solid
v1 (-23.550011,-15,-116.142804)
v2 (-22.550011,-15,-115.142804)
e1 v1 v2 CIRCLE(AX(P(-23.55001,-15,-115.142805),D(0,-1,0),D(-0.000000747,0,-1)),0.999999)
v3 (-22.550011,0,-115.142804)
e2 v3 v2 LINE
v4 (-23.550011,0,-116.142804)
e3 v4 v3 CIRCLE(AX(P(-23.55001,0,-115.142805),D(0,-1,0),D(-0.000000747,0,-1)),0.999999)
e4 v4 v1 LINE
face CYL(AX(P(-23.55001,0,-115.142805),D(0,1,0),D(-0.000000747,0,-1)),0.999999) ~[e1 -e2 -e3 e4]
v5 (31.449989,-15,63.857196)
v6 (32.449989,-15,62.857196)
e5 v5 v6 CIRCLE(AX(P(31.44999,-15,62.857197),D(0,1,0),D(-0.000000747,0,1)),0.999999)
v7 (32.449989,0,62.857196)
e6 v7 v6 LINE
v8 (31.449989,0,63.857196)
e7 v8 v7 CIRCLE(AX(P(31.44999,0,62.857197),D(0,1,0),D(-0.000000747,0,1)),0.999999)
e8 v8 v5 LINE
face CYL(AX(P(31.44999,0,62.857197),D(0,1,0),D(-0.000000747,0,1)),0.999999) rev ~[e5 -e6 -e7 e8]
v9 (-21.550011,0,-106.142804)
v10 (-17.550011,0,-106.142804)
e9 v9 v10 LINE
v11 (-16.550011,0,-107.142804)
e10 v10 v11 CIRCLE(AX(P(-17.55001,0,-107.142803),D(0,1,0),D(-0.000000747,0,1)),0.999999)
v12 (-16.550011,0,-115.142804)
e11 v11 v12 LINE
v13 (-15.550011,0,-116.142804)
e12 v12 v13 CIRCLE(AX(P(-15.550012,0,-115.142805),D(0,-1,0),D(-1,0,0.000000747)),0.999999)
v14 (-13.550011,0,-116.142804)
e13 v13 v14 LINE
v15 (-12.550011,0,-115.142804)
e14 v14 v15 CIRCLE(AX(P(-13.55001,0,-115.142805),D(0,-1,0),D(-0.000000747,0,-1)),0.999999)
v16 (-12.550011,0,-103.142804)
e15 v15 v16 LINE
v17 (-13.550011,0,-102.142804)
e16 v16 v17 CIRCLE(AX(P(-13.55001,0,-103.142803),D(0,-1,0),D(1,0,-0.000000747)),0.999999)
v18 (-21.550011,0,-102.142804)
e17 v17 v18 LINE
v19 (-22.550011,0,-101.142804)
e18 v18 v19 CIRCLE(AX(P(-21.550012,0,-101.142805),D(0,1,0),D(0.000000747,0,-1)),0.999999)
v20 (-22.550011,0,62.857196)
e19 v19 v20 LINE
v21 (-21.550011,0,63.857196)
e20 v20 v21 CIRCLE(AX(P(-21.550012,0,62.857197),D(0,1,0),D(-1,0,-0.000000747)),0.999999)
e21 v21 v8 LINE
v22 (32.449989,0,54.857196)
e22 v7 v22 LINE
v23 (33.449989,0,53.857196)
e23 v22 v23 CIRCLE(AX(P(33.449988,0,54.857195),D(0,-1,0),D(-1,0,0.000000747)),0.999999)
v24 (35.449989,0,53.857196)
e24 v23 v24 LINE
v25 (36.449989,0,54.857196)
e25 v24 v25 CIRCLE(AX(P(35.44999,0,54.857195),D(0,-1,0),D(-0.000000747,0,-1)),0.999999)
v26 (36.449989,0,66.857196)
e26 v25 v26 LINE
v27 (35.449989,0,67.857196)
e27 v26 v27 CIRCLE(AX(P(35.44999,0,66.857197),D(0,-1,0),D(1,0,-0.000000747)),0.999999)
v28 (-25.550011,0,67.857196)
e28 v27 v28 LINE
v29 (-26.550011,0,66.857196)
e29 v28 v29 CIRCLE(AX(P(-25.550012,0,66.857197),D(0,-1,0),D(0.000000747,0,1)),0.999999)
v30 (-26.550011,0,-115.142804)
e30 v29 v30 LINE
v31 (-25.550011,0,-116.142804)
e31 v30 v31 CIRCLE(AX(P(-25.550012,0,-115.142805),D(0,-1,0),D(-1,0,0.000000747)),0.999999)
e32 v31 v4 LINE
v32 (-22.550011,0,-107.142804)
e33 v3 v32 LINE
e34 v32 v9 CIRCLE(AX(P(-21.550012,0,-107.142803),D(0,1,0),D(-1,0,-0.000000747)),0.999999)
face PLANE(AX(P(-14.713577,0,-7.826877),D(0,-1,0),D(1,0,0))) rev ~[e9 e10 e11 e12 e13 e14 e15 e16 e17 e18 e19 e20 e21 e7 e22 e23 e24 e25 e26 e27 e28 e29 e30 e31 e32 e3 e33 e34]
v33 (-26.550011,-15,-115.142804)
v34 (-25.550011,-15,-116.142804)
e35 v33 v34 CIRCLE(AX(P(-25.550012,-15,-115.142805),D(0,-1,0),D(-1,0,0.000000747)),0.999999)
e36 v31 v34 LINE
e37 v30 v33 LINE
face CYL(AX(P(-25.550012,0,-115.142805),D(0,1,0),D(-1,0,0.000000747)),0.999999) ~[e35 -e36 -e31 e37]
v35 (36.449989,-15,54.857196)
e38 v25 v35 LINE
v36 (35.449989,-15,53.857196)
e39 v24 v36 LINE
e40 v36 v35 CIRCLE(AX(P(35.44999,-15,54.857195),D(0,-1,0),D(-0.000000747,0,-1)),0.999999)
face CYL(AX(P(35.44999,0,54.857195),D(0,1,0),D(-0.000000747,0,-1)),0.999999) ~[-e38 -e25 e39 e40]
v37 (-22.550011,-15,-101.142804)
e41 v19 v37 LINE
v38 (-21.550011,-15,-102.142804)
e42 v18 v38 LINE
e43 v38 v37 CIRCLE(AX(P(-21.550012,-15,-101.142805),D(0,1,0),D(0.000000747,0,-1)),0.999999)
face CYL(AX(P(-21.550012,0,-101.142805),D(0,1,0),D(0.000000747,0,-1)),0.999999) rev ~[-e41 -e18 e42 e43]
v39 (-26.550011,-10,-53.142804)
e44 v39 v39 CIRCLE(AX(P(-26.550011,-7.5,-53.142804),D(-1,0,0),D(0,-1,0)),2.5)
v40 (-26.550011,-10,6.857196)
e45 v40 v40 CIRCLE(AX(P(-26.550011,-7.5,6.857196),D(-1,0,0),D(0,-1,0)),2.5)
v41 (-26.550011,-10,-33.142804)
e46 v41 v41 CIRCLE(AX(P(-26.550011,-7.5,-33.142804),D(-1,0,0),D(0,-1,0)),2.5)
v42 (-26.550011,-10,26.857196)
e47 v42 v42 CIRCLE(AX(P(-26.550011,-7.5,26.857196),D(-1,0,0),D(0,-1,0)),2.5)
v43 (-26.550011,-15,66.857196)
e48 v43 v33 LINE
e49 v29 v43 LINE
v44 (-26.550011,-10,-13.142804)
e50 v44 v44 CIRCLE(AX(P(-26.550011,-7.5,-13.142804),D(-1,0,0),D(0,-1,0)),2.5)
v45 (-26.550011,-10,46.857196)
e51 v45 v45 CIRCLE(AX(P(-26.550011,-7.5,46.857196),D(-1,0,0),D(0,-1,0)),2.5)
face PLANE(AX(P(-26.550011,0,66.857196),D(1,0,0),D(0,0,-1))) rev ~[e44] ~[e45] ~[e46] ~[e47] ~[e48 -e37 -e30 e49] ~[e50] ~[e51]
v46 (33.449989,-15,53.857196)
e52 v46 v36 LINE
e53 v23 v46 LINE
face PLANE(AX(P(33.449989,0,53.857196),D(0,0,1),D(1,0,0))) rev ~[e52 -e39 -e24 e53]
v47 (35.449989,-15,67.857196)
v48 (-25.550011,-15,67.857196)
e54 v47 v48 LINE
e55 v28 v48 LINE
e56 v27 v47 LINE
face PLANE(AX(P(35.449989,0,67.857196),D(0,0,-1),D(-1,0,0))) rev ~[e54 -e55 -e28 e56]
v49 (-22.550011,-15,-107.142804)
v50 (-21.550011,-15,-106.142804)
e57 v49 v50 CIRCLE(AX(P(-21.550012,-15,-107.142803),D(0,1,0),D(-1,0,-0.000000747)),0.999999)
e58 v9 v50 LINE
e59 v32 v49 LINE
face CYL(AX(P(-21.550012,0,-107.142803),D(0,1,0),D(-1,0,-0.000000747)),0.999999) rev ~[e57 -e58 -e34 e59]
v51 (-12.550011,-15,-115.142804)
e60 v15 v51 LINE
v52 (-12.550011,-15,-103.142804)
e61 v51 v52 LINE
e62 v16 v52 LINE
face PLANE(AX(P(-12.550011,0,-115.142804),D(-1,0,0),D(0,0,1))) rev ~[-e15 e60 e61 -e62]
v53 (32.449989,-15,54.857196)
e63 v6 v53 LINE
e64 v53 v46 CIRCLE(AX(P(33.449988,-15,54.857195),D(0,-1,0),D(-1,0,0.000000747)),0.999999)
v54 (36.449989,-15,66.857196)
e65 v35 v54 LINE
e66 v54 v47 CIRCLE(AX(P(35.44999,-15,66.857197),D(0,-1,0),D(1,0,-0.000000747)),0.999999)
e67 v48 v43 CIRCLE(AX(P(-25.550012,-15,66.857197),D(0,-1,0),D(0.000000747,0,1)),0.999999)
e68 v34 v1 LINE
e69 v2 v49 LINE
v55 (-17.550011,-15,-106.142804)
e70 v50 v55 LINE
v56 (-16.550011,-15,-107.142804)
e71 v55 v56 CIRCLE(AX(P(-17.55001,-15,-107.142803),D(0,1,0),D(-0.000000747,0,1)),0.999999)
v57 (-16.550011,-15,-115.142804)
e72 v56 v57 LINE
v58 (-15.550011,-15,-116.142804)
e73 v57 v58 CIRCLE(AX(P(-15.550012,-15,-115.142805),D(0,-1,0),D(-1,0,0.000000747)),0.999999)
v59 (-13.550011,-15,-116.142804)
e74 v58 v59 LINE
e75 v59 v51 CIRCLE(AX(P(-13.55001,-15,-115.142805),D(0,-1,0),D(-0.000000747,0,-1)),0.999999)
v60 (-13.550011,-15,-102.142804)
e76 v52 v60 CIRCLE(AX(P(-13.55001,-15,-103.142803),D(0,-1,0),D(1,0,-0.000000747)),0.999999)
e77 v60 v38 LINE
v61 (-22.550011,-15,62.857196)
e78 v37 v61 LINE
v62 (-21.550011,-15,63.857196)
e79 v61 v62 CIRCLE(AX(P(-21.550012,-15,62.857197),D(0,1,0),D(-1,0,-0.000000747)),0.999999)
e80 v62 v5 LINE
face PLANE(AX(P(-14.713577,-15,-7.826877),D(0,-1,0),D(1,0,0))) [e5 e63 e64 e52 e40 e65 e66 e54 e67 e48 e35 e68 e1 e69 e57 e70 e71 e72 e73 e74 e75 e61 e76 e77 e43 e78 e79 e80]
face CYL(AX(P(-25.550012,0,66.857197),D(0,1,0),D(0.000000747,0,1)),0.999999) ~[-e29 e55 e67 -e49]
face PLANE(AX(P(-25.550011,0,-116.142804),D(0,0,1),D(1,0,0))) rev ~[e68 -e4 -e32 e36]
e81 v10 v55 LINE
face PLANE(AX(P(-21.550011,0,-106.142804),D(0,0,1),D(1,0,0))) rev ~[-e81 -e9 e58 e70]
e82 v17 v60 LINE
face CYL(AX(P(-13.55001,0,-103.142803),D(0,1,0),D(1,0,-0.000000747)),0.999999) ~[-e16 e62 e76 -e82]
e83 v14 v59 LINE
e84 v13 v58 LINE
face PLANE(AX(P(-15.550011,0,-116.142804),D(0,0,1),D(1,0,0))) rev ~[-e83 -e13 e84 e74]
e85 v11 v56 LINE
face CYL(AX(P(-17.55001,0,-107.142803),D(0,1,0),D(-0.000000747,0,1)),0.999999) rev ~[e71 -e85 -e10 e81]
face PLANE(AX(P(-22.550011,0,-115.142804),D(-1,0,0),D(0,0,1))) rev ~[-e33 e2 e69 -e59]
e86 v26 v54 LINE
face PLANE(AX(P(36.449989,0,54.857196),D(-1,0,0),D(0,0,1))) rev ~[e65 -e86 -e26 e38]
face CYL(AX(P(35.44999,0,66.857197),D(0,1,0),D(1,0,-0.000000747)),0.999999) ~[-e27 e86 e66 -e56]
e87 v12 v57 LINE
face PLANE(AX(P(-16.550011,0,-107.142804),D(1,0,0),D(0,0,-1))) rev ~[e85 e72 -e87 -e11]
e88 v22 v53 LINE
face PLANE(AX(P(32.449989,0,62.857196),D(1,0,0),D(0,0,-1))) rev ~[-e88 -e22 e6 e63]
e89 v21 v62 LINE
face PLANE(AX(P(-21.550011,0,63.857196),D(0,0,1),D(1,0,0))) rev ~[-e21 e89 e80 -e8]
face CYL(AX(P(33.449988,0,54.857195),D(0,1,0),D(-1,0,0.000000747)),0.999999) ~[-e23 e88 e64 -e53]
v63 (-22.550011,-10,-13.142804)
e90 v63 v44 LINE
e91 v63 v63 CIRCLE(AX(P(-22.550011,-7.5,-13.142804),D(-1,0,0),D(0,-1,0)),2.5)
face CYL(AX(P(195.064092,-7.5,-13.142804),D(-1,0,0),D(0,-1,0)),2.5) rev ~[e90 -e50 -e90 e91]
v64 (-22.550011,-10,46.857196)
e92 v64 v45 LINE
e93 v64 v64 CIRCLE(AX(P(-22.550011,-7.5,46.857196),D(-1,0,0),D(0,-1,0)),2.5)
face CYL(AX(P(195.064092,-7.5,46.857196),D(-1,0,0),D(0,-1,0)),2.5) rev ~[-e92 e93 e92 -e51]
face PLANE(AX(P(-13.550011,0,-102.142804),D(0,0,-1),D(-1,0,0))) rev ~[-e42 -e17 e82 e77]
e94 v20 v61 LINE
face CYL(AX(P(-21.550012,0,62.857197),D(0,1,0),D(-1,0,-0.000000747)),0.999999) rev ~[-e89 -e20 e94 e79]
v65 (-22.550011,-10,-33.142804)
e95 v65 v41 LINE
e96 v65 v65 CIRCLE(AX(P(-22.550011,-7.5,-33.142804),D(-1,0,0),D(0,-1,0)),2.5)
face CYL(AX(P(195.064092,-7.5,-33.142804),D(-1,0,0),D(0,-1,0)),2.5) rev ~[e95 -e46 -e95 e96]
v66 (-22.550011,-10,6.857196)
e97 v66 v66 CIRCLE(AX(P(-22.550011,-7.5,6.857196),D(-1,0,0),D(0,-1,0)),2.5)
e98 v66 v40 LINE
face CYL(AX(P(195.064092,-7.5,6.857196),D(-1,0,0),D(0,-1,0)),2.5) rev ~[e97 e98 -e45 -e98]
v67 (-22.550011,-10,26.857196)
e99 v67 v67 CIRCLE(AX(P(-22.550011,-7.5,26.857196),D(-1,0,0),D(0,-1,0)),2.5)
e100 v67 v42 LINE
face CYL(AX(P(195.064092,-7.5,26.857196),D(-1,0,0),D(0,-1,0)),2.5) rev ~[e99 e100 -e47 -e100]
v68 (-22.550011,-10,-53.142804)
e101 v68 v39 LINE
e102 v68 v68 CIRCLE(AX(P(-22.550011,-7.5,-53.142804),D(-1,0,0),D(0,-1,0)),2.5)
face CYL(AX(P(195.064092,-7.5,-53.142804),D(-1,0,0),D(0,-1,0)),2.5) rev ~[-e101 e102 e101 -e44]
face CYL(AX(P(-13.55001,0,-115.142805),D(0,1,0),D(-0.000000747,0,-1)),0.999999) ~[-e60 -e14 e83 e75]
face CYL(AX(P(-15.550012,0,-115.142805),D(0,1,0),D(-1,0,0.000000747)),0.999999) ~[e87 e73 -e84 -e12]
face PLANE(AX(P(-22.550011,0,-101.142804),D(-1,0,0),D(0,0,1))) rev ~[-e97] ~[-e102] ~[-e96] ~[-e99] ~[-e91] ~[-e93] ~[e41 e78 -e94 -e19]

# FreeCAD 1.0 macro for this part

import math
import FreeCAD as App
import Part
import Sketcher

V = App.Vector
Q = App.Units.Quantity

doc = App.newDocument("Part")
body = doc.addObject("PartDesign::Body", "Body")

sketch1 = body.newObject("Sketcher::SketchObject", "Sketch")
sketch1.AttachmentSupport = (doc.getObject("XZ_Plane"), [""])
sketch1.MapMode = "FlatFace"
sketch1.addGeometry(Part.ArcOfCircle(Part.Circle(V(-21.6, -101.1, 0), V(0, 0, 1), 1), math.radians(180), math.radians(270)), False)
sketch1.addGeometry(Part.LineSegment(V(-22.6, -101.1, 0), V(-22.6, 62.9, 0)), False)
sketch1.addGeometry(Part.ArcOfCircle(Part.Circle(V(-21.6, 62.9, 0), V(0, 0, 1), 1), math.radians(90), math.radians(180)), False)
sketch1.addGeometry(Part.LineSegment(V(-21.6, 63.9, 0), V(31.4, 63.9, 0)), False)
sketch1.addGeometry(Part.ArcOfCircle(Part.Circle(V(31.4, 62.9, 0), V(0, 0, 1), 1), math.radians(0), math.radians(90)), False)
sketch1.addGeometry(Part.LineSegment(V(32.4, 62.9, 0), V(32.4, 54.9, 0)), False)
sketch1.addGeometry(Part.ArcOfCircle(Part.Circle(V(33.4, 54.9, 0), V(0, 0, 1), 1), math.radians(180), math.radians(270)), False)
sketch1.addGeometry(Part.LineSegment(V(33.4, 53.9, 0), V(35.4, 53.9, 0)), False)
sketch1.addGeometry(Part.ArcOfCircle(Part.Circle(V(35.4, 54.9, 0), V(0, 0, 1), 1), math.radians(-90), math.radians(0)), False)
sketch1.addGeometry(Part.LineSegment(V(36.4, 54.9, 0), V(36.4, 66.9, 0)), False)
sketch1.addGeometry(Part.ArcOfCircle(Part.Circle(V(35.4, 66.9, 0), V(0, 0, 1), 1), math.radians(0), math.radians(90)), False)
sketch1.addGeometry(Part.LineSegment(V(35.4, 67.9, 0), V(-25.6, 67.9, 0)), False)
sketch1.addGeometry(Part.ArcOfCircle(Part.Circle(V(-25.6, 66.9, 0), V(0, 0, 1), 1), math.radians(90), math.radians(180)), False)
sketch1.addGeometry(Part.LineSegment(V(-26.6, 66.9, 0), V(-26.6, -115.1, 0)), False)
sketch1.addGeometry(Part.ArcOfCircle(Part.Circle(V(-25.6, -115.1, 0), V(0, 0, 1), 1), math.radians(180), math.radians(270)), False)
sketch1.addGeometry(Part.LineSegment(V(-25.6, -116.1, 0), V(-23.6, -116.1, 0)), False)
sketch1.addGeometry(Part.ArcOfCircle(Part.Circle(V(-23.6, -115.1, 0), V(0, 0, 1), 1), math.radians(-90), math.radians(0)), False)
sketch1.addGeometry(Part.LineSegment(V(-22.6, -115.1, 0), V(-22.6, -107.1, 0)), False)
sketch1.addGeometry(Part.ArcOfCircle(Part.Circle(V(-21.6, -107.1, 0), V(0, 0, 1), 1), math.radians(90), math.radians(180)), False)
sketch1.addGeometry(Part.LineSegment(V(-21.6, -106.1, 0), V(-17.6, -106.1, 0)), False)
sketch1.addGeometry(Part.ArcOfCircle(Part.Circle(V(-17.6, -107.1, 0), V(0, 0, 1), 1), math.radians(0), math.radians(90)), False)
sketch1.addGeometry(Part.LineSegment(V(-16.6, -107.1, 0), V(-16.6, -115.1, 0)), False)
sketch1.addGeometry(Part.ArcOfCircle(Part.Circle(V(-15.6, -115.1, 0), V(0, 0, 1), 1), math.radians(180), math.radians(270)), False)
sketch1.addGeometry(Part.LineSegment(V(-15.6, -116.1, 0), V(-13.6, -116.1, 0)), False)
sketch1.addGeometry(Part.ArcOfCircle(Part.Circle(V(-13.6, -115.1, 0), V(0, 0, 1), 1), math.radians(-90), math.radians(0)), False)
sketch1.addGeometry(Part.LineSegment(V(-12.6, -115.1, 0), V(-12.6, -103.1, 0)), False)
sketch1.addGeometry(Part.ArcOfCircle(Part.Circle(V(-13.6, -103.1, 0), V(0, 0, 1), 1), math.radians(0), math.radians(90)), False)
sketch1.addGeometry(Part.LineSegment(V(-13.6, -102.1, 0), V(-21.6, -102.1, 0)), False)
sketch1.addConstraint(Sketcher.Constraint("Tangent", 0, 1, 1, 1))
sketch1.addConstraint(Sketcher.Constraint("Tangent", 1, 2, 2, 2))
sketch1.addConstraint(Sketcher.Constraint("Tangent", 2, 1, 3, 1))
sketch1.addConstraint(Sketcher.Constraint("Tangent", 3, 2, 4, 2))
sketch1.addConstraint(Sketcher.Constraint("Tangent", 4, 1, 5, 1))
sketch1.addConstraint(Sketcher.Constraint("Tangent", 5, 2, 6, 1))
sketch1.addConstraint(Sketcher.Constraint("Tangent", 6, 2, 7, 1))
sketch1.addConstraint(Sketcher.Constraint("Tangent", 7, 2, 8, 1))
sketch1.addConstraint(Sketcher.Constraint("Tangent", 8, 2, 9, 1))
sketch1.addConstraint(Sketcher.Constraint("Tangent", 9, 2, 10, 1))
sketch1.addConstraint(Sketcher.Constraint("Tangent", 10, 2, 11, 1))
sketch1.addConstraint(Sketcher.Constraint("Tangent", 11, 2, 12, 1))
sketch1.addConstraint(Sketcher.Constraint("Tangent", 12, 2, 13, 1))
sketch1.addConstraint(Sketcher.Constraint("Tangent", 13, 2, 14, 1))
sketch1.addConstraint(Sketcher.Constraint("Tangent", 14, 2, 15, 1))
sketch1.addConstraint(Sketcher.Constraint("Tangent", 15, 2, 16, 1))
sketch1.addConstraint(Sketcher.Constraint("Tangent", 16, 2, 17, 1))
sketch1.addConstraint(Sketcher.Constraint("Tangent", 17, 2, 18, 2))
sketch1.addConstraint(Sketcher.Constraint("Tangent", 18, 1, 19, 1))
sketch1.addConstraint(Sketcher.Constraint("Tangent", 19, 2, 20, 2))
sketch1.addConstraint(Sketcher.Constraint("Tangent", 20, 1, 21, 1))
sketch1.addConstraint(Sketcher.Constraint("Tangent", 21, 2, 22, 1))
sketch1.addConstraint(Sketcher.Constraint("Tangent", 22, 2, 23, 1))
sketch1.addConstraint(Sketcher.Constraint("Tangent", 23, 2, 24, 1))
sketch1.addConstraint(Sketcher.Constraint("Tangent", 24, 2, 25, 1))
sketch1.addConstraint(Sketcher.Constraint("Tangent", 25, 2, 26, 1))
sketch1.addConstraint(Sketcher.Constraint("Tangent", 26, 2, 27, 1))
sketch1.addConstraint(Sketcher.Constraint("Tangent", 27, 2, 0, 2))
sketch1.addConstraint(Sketcher.Constraint("Vertical", 1))
sketch1.addConstraint(Sketcher.Constraint("Horizontal", 3))
sketch1.addConstraint(Sketcher.Constraint("Vertical", 5))
sketch1.addConstraint(Sketcher.Constraint("Horizontal", 7))
sketch1.addConstraint(Sketcher.Constraint("Vertical", 9))
sketch1.addConstraint(Sketcher.Constraint("Horizontal", 11))
sketch1.addConstraint(Sketcher.Constraint("Vertical", 13))
sketch1.addConstraint(Sketcher.Constraint("Horizontal", 15))
sketch1.addConstraint(Sketcher.Constraint("Vertical", 17))
sketch1.addConstraint(Sketcher.Constraint("Horizontal", 19))
sketch1.addConstraint(Sketcher.Constraint("Vertical", 21))
sketch1.addConstraint(Sketcher.Constraint("Horizontal", 23))
sketch1.addConstraint(Sketcher.Constraint("Vertical", 25))
sketch1.addConstraint(Sketcher.Constraint("Horizontal", 27))
sketch1.addConstraint(Sketcher.Constraint("Equal", 0, 2))
sketch1.addConstraint(Sketcher.Constraint("Equal", 2, 4))
sketch1.addConstraint(Sketcher.Constraint("Equal", 4, 6))
sketch1.addConstraint(Sketcher.Constraint("Equal", 6, 8))
sketch1.addConstraint(Sketcher.Constraint("Equal", 8, 10))
sketch1.addConstraint(Sketcher.Constraint("Equal", 10, 12))
sketch1.addConstraint(Sketcher.Constraint("Equal", 12, 14))
sketch1.addConstraint(Sketcher.Constraint("Equal", 14, 16))
sketch1.addConstraint(Sketcher.Constraint("Equal", 16, 18))
sketch1.addConstraint(Sketcher.Constraint("Equal", 18, 20))
sketch1.addConstraint(Sketcher.Constraint("Equal", 20, 22))
sketch1.addConstraint(Sketcher.Constraint("Equal", 22, 24))
sketch1.addConstraint(Sketcher.Constraint("Equal", 24, 26))
sketch1.addConstraint(Sketcher.Constraint("Horizontal", 16, 3, 22, 3))
sketch1.addConstraint(Sketcher.Constraint("Vertical", 2, 3, 18, 3))
sketch1.addConstraint(Sketcher.Constraint("Equal", 7, 15))
sketch1.addConstraint(Sketcher.Constraint("Equal", 15, 23))
sketch1.addConstraint(Sketcher.Constraint("Equal", 27, 5))
sketch1.addConstraint(Sketcher.Constraint("Equal", 5, 17))
sketch1.addConstraint(Sketcher.Constraint("Equal", 9, 25))
sketch1.addConstraint(Sketcher.Constraint("Radius", 0, Q("0.999999 mm")))
sketch1.addConstraint(Sketcher.Constraint("DistanceX", 3, 1, 3, 2, Q("53 mm")))
sketch1.addConstraint(Sketcher.Constraint("DistanceX", 7, 1, 7, 2, Q("2 mm")))
sketch1.addConstraint(Sketcher.Constraint("DistanceX", 19, 1, 19, 2, Q("4 mm")))
sketch1.addConstraint(Sketcher.Constraint("DistanceY", 1, 1, 1, 2, Q("164 mm")))
sketch1.addConstraint(Sketcher.Constraint("DistanceY", 9, 1, 9, 2, Q("12 mm")))
sketch1.addConstraint(Sketcher.Constraint("DistanceX", 0, 3, -1, 1, Q("21.550012 mm")))
sketch1.addConstraint(Sketcher.Constraint("DistanceY", 0, 3, -1, 1, Q("101.142805 mm")))
pad1 = body.newObject("PartDesign::Pad", "Pad")
pad1.Profile = sketch1
pad1.Length = 15

sketch2 = body.newObject("Sketcher::SketchObject", "Sketch001")
sketch2.AttachmentSupport = (doc.getObject("YZ_Plane"), [""])
sketch2.MapMode = "FlatFace"
sketch2.addGeometry(Part.Circle(V(-7.5, 26.9, 0), V(0, 0, 1), 2.5), False)
sketch2.addGeometry(Part.Circle(V(-7.5, 46.9, 0), V(0, 0, 1), 2.5), False)
sketch2.addGeometry(Part.Circle(V(-7.5, 6.9, 0), V(0, 0, 1), 2.5), False)
sketch2.addGeometry(Part.Circle(V(-7.5, -13.1, 0), V(0, 0, 1), 2.5), False)
sketch2.addGeometry(Part.Circle(V(-7.5, -33.1, 0), V(0, 0, 1), 2.5), False)
sketch2.addGeometry(Part.Circle(V(-7.5, -53.1, 0), V(0, 0, 1), 2.5), False)
sketch2.addConstraint(Sketcher.Constraint("Equal", 0, 1))
sketch2.addConstraint(Sketcher.Constraint("Equal", 1, 2))
sketch2.addConstraint(Sketcher.Constraint("Equal", 2, 3))
sketch2.addConstraint(Sketcher.Constraint("Equal", 3, 4))
sketch2.addConstraint(Sketcher.Constraint("Equal", 4, 5))
sketch2.addConstraint(Sketcher.Constraint("Vertical", 0, 3, 1, 3))
sketch2.addConstraint(Sketcher.Constraint("Vertical", 1, 3, 2, 3))
sketch2.addConstraint(Sketcher.Constraint("Vertical", 2, 3, 3, 3))
sketch2.addConstraint(Sketcher.Constraint("Vertical", 3, 3, 4, 3))
sketch2.addConstraint(Sketcher.Constraint("Vertical", 4, 3, 5, 3))
sketch2.addConstraint(Sketcher.Constraint("Diameter", 0, Q("5 mm")))
sketch2.addConstraint(Sketcher.Constraint("DistanceY", 0, 3, 1, 3, Q("20 mm")))
sketch2.addConstraint(Sketcher.Constraint("DistanceY", 2, 3, 0, 3, Q("20 mm")))
sketch2.addConstraint(Sketcher.Constraint("DistanceY", 3, 3, 2, 3, Q("20 mm")))
sketch2.addConstraint(Sketcher.Constraint("DistanceY", 4, 3, 3, 3, Q("20 mm")))
sketch2.addConstraint(Sketcher.Constraint("DistanceY", 5, 3, 4, 3, Q("20 mm")))
sketch2.addConstraint(Sketcher.Constraint("DistanceX", 0, 3, -1, 1, Q("7.5 mm")))
sketch2.addConstraint(Sketcher.Constraint("DistanceY", -1, 1, 0, 3, Q("26.857196 mm")))
doc.recompute()
hole = body.newObject("PartDesign::Hole", "Hole")
hole.Profile = sketch2
hole.ThreadType = "None"
hole.Diameter = 5
hole.DepthType = "ThroughAll"

doc.recompute()
